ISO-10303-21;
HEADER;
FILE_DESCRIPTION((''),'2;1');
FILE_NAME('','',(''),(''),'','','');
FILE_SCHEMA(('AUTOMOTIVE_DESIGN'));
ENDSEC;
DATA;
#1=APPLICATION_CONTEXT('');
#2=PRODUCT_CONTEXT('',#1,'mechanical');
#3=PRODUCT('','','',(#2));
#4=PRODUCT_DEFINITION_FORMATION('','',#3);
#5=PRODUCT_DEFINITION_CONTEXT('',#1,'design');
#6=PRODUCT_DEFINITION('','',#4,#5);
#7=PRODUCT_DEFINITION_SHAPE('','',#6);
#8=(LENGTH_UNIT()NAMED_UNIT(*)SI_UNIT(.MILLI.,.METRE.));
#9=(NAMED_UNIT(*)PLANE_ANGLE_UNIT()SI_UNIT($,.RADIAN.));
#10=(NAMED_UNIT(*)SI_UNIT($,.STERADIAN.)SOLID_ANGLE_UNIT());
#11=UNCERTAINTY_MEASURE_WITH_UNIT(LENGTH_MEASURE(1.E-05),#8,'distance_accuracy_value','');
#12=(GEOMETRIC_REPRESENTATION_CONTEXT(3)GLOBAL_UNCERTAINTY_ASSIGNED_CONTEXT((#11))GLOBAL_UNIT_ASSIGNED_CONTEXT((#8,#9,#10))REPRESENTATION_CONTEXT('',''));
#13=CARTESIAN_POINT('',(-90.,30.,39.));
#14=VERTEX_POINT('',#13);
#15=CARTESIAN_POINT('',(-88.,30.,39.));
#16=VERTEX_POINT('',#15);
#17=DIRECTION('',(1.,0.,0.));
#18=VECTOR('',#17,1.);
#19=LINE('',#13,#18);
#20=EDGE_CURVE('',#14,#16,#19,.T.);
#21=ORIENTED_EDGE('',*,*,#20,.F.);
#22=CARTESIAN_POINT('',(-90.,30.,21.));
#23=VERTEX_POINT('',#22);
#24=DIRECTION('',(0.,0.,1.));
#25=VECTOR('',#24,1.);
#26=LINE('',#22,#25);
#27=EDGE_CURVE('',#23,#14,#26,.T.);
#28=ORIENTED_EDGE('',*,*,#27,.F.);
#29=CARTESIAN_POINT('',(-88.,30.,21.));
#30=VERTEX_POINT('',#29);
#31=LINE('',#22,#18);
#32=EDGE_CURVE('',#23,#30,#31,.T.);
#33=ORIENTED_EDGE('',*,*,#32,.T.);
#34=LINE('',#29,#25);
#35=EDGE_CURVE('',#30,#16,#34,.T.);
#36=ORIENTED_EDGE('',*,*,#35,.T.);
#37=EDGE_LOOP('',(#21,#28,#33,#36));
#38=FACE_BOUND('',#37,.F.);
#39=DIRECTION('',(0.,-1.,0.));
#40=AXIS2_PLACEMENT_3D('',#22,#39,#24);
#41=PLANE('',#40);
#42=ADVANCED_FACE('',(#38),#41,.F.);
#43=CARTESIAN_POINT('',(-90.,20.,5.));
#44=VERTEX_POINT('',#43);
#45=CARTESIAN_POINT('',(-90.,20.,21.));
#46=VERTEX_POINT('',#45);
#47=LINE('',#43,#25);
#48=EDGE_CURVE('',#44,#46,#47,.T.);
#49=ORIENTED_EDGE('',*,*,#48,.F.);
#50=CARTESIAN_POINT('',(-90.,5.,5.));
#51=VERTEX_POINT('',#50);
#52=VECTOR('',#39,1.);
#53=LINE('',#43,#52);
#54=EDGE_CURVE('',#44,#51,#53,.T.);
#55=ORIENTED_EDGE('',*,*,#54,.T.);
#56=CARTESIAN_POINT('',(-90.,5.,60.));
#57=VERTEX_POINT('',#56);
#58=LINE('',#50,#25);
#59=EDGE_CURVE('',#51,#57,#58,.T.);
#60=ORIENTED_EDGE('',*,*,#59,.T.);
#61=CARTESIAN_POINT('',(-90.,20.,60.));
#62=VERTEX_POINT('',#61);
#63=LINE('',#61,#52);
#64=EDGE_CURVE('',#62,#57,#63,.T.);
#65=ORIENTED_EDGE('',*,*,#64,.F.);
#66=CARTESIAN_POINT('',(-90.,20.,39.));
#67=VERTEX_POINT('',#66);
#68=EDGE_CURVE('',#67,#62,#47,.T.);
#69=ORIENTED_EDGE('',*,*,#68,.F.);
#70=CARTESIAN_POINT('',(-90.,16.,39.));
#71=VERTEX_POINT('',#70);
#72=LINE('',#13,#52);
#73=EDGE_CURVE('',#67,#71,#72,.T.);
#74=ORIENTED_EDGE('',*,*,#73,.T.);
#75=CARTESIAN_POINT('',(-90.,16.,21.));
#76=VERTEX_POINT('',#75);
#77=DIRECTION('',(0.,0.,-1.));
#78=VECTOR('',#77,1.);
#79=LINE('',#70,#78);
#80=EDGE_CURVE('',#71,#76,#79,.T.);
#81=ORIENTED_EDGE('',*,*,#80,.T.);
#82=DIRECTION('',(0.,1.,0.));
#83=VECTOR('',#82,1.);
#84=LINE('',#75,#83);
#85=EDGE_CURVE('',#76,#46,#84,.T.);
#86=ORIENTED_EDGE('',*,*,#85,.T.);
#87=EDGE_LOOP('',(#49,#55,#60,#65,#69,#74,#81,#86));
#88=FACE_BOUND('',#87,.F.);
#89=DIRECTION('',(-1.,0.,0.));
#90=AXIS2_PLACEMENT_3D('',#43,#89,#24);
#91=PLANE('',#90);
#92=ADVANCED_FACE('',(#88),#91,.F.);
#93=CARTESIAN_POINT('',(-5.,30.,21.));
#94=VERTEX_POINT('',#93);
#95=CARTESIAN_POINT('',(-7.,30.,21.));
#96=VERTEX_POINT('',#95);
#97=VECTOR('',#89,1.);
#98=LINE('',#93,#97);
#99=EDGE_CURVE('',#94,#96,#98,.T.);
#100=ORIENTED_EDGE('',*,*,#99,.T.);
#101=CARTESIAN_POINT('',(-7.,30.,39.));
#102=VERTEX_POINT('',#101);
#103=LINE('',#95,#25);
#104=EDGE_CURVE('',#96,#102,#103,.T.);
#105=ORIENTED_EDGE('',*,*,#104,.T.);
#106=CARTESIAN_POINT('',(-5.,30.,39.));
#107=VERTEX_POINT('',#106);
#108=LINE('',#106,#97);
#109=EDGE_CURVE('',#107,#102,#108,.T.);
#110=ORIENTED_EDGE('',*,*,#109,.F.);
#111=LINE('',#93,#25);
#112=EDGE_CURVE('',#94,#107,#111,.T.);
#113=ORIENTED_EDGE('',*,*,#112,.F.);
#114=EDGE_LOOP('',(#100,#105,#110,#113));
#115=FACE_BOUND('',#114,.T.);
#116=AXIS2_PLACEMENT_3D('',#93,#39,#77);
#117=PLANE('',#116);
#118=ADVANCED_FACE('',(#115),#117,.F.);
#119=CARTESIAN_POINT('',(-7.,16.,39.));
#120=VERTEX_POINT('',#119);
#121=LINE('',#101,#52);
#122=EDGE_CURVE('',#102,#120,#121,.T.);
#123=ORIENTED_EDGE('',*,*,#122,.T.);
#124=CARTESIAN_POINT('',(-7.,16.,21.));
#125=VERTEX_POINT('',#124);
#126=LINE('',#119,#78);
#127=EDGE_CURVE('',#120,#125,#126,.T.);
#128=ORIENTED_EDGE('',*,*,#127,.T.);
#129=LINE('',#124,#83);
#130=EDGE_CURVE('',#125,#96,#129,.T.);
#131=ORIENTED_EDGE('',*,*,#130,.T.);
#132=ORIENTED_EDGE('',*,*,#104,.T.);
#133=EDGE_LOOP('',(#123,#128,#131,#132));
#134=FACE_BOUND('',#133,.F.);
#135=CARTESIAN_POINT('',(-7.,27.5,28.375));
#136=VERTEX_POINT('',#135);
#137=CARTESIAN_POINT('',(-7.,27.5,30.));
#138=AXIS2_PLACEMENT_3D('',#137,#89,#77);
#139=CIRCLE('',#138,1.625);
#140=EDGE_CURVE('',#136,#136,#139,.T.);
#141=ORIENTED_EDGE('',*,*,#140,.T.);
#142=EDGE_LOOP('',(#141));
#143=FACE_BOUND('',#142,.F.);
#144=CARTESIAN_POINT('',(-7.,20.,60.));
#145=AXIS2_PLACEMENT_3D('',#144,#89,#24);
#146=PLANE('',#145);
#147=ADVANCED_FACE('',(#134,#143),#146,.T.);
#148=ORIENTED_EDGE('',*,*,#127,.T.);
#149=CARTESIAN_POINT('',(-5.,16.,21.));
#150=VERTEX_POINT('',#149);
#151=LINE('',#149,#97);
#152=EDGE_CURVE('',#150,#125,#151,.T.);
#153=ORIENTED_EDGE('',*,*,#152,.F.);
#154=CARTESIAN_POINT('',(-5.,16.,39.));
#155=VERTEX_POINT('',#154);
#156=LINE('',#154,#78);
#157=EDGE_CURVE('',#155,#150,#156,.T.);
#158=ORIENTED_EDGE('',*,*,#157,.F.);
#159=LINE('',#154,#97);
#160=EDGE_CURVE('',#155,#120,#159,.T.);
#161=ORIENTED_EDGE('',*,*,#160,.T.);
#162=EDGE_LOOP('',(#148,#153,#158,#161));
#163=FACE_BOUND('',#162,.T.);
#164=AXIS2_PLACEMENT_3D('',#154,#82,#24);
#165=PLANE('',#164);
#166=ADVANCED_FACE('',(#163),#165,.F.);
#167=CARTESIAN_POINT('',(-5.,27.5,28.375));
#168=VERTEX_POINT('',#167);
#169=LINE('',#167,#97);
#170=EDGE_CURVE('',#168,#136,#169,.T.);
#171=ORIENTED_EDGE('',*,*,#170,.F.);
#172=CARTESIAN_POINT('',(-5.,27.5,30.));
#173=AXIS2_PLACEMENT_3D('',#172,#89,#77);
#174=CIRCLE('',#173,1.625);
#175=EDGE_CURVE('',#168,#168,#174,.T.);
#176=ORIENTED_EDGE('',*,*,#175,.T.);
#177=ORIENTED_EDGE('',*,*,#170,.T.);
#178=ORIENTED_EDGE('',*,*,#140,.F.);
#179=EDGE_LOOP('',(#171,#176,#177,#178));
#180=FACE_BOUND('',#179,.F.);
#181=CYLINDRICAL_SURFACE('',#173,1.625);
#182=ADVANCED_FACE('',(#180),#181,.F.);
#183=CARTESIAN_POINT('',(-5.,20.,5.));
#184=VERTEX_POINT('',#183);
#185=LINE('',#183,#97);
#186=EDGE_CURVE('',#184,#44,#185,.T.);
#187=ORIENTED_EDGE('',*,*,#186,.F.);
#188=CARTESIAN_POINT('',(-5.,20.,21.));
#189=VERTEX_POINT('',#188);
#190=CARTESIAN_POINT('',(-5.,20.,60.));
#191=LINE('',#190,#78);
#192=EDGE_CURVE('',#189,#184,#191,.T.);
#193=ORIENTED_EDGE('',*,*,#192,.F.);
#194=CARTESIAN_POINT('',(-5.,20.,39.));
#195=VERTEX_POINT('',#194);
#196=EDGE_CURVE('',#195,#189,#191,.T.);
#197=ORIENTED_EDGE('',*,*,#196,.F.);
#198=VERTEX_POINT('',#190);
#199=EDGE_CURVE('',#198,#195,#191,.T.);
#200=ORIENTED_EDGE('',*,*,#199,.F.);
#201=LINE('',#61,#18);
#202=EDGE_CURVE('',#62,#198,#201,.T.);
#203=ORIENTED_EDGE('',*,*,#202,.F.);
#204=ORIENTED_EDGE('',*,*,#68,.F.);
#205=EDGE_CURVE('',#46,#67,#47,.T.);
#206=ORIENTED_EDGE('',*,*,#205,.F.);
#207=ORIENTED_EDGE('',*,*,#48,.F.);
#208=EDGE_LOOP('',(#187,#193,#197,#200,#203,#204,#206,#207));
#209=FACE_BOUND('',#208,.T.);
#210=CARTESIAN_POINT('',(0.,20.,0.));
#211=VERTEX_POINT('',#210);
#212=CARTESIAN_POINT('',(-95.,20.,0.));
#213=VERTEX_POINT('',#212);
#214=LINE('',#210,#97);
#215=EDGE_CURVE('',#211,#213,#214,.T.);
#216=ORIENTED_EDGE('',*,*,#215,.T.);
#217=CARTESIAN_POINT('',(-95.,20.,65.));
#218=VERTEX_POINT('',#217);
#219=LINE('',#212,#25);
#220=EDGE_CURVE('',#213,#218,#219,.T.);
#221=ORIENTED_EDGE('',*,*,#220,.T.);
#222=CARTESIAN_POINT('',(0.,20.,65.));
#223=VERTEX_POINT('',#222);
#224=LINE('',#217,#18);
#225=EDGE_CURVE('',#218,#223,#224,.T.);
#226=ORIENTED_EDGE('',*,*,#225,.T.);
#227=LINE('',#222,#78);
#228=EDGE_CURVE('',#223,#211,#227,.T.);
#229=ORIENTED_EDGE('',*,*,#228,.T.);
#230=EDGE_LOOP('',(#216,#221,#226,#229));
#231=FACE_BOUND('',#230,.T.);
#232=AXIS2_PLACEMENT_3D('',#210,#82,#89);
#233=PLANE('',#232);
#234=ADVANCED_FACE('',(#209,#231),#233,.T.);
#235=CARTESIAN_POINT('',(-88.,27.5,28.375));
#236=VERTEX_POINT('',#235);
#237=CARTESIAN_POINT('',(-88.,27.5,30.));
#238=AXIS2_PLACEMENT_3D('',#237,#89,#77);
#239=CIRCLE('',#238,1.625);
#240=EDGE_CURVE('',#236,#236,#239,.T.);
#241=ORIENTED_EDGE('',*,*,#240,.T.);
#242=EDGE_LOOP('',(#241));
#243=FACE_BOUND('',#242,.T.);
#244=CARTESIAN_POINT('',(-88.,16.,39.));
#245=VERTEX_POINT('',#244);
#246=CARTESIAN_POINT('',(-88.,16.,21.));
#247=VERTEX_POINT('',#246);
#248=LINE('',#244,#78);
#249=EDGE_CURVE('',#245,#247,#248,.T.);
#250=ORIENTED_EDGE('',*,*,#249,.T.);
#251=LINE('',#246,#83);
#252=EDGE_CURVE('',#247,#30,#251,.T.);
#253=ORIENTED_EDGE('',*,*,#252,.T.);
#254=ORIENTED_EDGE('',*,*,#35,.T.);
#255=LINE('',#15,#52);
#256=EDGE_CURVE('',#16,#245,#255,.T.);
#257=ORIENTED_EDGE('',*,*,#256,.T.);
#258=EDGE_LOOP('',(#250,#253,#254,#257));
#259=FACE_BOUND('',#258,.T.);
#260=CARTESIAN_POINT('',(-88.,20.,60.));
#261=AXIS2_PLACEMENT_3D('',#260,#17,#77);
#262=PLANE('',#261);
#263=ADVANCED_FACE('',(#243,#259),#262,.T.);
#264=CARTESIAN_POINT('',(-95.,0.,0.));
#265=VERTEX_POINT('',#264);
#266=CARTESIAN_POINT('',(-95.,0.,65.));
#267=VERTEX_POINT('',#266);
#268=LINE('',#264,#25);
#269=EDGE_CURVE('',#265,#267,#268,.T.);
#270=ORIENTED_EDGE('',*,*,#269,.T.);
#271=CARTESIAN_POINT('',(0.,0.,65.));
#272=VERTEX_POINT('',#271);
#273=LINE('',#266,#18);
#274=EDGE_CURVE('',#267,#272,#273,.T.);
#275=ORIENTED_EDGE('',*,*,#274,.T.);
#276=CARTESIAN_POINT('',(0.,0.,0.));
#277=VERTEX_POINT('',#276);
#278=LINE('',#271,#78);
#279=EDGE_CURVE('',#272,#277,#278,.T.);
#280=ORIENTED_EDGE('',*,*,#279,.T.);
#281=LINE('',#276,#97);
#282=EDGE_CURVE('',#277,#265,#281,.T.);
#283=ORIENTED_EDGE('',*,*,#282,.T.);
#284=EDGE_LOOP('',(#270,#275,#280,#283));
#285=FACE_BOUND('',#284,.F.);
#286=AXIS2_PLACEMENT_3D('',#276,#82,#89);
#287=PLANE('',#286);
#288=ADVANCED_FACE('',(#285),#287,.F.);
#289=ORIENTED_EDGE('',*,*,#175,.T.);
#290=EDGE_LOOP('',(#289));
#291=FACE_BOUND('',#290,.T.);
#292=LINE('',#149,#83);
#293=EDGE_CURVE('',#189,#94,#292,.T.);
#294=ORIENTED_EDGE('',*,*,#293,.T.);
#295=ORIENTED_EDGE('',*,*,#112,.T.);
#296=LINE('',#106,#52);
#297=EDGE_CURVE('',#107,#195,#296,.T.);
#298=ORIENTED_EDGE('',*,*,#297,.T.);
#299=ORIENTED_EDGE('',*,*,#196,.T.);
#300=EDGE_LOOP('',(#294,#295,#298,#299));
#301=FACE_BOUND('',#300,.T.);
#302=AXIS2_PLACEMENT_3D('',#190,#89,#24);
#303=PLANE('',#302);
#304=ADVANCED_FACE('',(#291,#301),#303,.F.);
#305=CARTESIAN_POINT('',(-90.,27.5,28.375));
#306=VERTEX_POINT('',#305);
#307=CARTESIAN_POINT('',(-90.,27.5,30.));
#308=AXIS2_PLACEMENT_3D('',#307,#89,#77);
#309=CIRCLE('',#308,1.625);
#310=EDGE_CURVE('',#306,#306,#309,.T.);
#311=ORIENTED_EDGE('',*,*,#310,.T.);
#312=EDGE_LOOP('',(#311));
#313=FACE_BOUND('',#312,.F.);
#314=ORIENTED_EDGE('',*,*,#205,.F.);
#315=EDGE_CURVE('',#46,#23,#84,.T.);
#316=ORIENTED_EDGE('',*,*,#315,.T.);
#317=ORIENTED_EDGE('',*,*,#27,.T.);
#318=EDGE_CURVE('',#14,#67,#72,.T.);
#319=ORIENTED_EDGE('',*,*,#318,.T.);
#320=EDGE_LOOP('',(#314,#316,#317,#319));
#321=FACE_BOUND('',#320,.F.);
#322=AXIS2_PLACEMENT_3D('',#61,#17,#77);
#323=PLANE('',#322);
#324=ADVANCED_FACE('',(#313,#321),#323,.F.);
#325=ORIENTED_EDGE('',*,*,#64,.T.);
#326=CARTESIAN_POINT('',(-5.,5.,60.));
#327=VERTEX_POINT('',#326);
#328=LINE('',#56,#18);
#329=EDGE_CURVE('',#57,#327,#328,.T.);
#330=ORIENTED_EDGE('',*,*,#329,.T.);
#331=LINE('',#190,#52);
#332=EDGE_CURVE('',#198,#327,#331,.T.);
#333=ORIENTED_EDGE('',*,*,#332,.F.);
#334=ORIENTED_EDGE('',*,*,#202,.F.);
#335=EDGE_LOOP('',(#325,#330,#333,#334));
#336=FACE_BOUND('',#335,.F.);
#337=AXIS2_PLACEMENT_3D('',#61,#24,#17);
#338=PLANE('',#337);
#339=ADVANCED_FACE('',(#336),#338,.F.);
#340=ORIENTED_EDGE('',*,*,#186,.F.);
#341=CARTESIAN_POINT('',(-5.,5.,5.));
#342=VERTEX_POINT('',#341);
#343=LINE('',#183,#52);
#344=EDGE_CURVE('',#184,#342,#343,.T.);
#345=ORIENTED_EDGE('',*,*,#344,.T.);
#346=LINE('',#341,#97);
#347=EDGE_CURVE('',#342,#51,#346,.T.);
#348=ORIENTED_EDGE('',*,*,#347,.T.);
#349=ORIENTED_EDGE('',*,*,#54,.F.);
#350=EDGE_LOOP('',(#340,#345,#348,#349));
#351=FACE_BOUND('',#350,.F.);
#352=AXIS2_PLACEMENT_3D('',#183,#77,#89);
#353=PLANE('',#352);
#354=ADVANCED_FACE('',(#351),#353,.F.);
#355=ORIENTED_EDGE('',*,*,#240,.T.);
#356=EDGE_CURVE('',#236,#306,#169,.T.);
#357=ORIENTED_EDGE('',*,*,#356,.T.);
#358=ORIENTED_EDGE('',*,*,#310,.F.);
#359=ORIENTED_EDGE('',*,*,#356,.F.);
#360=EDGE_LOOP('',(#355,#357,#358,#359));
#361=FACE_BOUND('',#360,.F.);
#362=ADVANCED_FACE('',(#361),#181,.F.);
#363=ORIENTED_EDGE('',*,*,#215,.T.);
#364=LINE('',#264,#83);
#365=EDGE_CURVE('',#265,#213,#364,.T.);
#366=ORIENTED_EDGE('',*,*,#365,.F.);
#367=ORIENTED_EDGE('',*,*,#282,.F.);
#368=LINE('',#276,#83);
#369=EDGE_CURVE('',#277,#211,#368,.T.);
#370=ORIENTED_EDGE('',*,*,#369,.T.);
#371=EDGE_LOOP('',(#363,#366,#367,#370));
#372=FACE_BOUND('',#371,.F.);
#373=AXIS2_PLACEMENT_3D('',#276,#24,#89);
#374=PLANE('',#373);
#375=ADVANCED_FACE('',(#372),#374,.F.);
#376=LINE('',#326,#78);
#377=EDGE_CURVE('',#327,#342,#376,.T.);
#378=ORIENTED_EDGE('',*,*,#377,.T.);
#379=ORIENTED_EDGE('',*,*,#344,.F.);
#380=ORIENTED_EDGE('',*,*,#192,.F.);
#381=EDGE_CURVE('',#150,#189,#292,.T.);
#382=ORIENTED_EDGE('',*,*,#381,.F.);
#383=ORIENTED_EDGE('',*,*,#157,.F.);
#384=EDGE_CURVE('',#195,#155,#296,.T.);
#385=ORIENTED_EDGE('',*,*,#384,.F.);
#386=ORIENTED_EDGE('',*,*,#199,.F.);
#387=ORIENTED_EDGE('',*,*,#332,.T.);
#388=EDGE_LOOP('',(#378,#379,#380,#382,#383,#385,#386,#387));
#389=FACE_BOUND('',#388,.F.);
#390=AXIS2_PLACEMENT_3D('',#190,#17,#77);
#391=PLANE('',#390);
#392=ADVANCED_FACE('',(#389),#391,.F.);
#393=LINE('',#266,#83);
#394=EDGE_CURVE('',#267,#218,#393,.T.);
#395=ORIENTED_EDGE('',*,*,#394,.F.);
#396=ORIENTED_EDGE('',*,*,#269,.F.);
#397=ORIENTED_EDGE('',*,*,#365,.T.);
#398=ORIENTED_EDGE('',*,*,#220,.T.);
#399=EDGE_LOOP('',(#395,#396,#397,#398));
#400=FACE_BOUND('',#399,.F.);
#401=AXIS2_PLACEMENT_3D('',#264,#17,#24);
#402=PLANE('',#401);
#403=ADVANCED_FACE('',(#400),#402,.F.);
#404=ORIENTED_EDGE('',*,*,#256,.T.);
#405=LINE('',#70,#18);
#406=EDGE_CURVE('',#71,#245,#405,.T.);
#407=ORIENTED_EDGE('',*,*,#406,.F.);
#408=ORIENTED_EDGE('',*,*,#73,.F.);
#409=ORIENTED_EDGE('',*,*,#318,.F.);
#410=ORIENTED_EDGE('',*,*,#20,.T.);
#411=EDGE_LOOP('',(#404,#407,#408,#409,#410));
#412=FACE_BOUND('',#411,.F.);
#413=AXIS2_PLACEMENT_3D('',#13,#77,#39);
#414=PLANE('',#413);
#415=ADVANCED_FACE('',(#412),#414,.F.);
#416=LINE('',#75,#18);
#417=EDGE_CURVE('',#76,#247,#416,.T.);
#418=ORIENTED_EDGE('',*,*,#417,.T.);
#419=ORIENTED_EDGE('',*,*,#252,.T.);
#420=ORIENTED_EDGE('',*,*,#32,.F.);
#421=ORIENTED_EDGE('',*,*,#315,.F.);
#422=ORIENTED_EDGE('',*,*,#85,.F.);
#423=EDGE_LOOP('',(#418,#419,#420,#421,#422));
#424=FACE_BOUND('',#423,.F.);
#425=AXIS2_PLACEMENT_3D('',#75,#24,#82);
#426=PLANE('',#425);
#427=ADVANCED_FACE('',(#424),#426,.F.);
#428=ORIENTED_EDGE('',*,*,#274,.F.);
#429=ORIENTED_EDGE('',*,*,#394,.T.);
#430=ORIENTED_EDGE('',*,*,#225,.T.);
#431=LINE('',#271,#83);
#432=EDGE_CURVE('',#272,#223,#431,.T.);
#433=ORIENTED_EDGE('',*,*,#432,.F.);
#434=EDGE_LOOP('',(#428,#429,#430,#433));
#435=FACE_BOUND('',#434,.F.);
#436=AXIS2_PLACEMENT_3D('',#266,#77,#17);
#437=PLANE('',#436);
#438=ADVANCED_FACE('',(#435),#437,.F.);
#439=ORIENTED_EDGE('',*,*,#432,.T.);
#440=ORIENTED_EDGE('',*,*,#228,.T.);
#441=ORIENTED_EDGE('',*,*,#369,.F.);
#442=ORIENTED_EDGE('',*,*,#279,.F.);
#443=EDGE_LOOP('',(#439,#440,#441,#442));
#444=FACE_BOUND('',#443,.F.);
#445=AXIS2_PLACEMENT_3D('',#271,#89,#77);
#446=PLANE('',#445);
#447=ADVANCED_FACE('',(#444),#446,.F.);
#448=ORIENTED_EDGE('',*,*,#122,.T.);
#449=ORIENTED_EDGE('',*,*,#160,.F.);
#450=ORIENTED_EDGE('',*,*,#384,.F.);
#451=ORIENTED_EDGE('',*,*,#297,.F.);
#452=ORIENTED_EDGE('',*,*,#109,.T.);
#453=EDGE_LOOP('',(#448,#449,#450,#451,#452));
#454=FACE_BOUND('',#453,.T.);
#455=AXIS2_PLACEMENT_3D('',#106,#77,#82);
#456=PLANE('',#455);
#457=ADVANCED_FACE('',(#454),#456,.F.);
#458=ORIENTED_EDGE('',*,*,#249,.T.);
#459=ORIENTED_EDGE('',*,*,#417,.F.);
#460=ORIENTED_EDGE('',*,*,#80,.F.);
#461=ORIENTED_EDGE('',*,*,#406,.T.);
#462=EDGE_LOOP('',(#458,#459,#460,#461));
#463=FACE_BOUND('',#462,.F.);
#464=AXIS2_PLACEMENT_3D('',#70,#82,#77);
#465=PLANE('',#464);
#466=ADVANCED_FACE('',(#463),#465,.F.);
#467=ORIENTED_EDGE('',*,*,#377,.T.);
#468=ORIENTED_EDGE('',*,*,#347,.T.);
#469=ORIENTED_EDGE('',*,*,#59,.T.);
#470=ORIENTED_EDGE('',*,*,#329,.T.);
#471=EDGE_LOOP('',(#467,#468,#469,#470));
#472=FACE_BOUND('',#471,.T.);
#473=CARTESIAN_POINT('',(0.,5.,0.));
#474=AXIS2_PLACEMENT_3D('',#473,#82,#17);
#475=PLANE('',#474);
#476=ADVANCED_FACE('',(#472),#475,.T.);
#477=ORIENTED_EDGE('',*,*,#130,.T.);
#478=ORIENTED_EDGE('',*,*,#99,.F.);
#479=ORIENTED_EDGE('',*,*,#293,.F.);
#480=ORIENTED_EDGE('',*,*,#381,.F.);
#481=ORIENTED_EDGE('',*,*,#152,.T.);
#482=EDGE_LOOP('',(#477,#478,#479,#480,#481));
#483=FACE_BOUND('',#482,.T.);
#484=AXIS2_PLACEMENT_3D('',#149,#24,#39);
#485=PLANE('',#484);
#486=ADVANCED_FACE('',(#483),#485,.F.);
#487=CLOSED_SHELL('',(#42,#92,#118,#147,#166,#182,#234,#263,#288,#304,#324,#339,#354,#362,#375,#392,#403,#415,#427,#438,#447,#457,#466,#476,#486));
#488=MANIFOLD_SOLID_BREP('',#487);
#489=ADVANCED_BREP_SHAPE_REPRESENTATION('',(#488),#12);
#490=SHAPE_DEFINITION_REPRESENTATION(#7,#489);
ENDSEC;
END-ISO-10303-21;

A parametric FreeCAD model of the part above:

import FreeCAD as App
import Part
import Sketcher


def add_polygon(sketch, points):
    """Adds a closed chain of lines whose ends are joined by coincident constraints."""
    first, n = sketch.GeometryCount, len(points)
    for a, b in zip(points, points[1:] + points[:1]):
        sketch.addGeometry(Part.LineSegment(App.Vector(*a, 0), App.Vector(*b, 0)), False)
    for i in range(n):
        sketch.addConstraint(Sketcher.Constraint("Coincident", first + i, 2, first + (i + 1) % n, 1))

doc = App.newDocument("Part")
body = doc.addObject("PartDesign::Body", "Body")

# Sketch on XZ plane
sketch1 = body.newObject("Sketcher::SketchObject", "Sketch")
sketch1.AttachmentSupport = (doc.getObject("XZ_Plane"), [""])
sketch1.MapMode = "FlatFace"
add_polygon(sketch1, [(0, 65), (0, 0), (-95, 0), (-95, 65)])  # lines 0-3
sketch1.addConstraint(Sketcher.Constraint("Vertical", 0))
sketch1.addConstraint(Sketcher.Constraint("Horizontal", 1))
sketch1.addConstraint(Sketcher.Constraint("Vertical", 2))
sketch1.addConstraint(Sketcher.Constraint("Horizontal", 3))
sketch1.addConstraint(Sketcher.Constraint("Coincident", 0, 2, -1, 1))
sketch1.addConstraint(Sketcher.Constraint("DistanceX", 1, 2, 1, 1, 95.0))
sketch1.addConstraint(Sketcher.Constraint("DistanceY", 0, 2, 0, 1, 65.0))
pad1 = body.newObject("PartDesign::Pad", "Pad")
pad1.Profile = sketch1
pad1.Length = 20
pad1.Reversed = True

# Sketch on XZ plane
sketch2 = body.newObject("Sketcher::SketchObject", "Sketch001")
sketch2.AttachmentSupport = (doc.getObject("XZ_Plane"), [""])
sketch2.MapMode = "FlatFace"
sketch2.AttachmentOffset = App.Placement(App.Vector(0, 0, -20), App.Rotation())
add_polygon(sketch2, [(-5, 60), (-5, 5), (-90, 5), (-90, 60)])  # lines 0-3
sketch2.addConstraint(Sketcher.Constraint("Vertical", 0))
sketch2.addConstraint(Sketcher.Constraint("Horizontal", 1))
sketch2.addConstraint(Sketcher.Constraint("Vertical", 2))
sketch2.addConstraint(Sketcher.Constraint("Horizontal", 3))
sketch2.addConstraint(Sketcher.Constraint("DistanceX", 1, 2, 1, 1, 85.0))
sketch2.addConstraint(Sketcher.Constraint("DistanceY", 0, 2, 0, 1, 55.0))
sketch2.addConstraint(Sketcher.Constraint("DistanceX", 0, 2, -1, 1, 5.0))
sketch2.addConstraint(Sketcher.Constraint("DistanceY", -1, 1, 0, 2, 5.0))
pocket1 = body.newObject("PartDesign::Pocket", "Pocket")
pocket1.Profile = sketch2
pocket1.Length = 15
pocket1.Reversed = True

# Sketch on YZ plane
sketch3 = body.newObject("Sketcher::SketchObject", "Sketch002")
sketch3.AttachmentSupport = (doc.getObject("YZ_Plane"), [""])
sketch3.MapMode = "FlatFace"
sketch3.AttachmentOffset = App.Placement(App.Vector(0, 0, -90), App.Rotation())
add_polygon(sketch3, [(30, 39), (16, 39), (16, 21), (30, 21)])  # lines 0-3
sketch3.addConstraint(Sketcher.Constraint("Horizontal", 0))
sketch3.addConstraint(Sketcher.Constraint("Vertical", 1))
sketch3.addConstraint(Sketcher.Constraint("Horizontal", 2))
sketch3.addConstraint(Sketcher.Constraint("Vertical", 3))
sketch3.addConstraint(Sketcher.Constraint("DistanceX", 0, 2, 0, 1, 14.0))
sketch3.addConstraint(Sketcher.Constraint("DistanceY", 1, 2, 1, 1, 18.0))
sketch3.addConstraint(Sketcher.Constraint("DistanceY", -1, 1, 1, 2, 21.0))
sketch3.addConstraint(Sketcher.Constraint("DistanceX", -1, 1, 0, 2, 16.0))
pad2 = body.newObject("PartDesign::Pad", "Pad001")
pad2.Profile = sketch3
pad2.Length = 2
doc.recompute()

datumplane = body.newObject("PartDesign::Plane", "DatumPlane")
datumplane.AttachmentSupport = (doc.getObject("YZ_Plane"), [""])
datumplane.MapMode = "FlatFace"
datumplane.AttachmentOffset = App.Placement(App.Vector(0, 0, -47.5), App.Rotation())
mirrored = body.newObject("PartDesign::Mirrored", "Mirrored")
mirrored.Originals = [pad2]
mirrored.MirrorPlane = (datumplane, [""])
body.Tip = mirrored

# Sketch on YZ plane
sketch4 = body.newObject("Sketcher::SketchObject", "Sketch003")
sketch4.AttachmentSupport = (doc.getObject("YZ_Plane"), [""])
sketch4.MapMode = "FlatFace"
sketch4.AttachmentOffset = App.Placement(App.Vector(0, 0, -5), App.Rotation())
sketch4.addGeometry(Part.Circle(App.Vector(27.5, 30, 0), App.Vector(0, 0, 1), 1.6), False)
sketch4.addConstraint(Sketcher.Constraint("Diameter", 0, 3.25))
sketch4.addConstraint(Sketcher.Constraint("DistanceY", -1, 1, 0, 3, 30.0))
sketch4.addConstraint(Sketcher.Constraint("DistanceX", -1, 1, 0, 3, 27.5))
doc.recompute()
hole = body.newObject("PartDesign::Hole", "Hole")
hole.Profile = sketch4
hole.ThreadType = "None"
hole.Diameter = 3.25
hole.DepthType = "ThroughAll"

doc.recompute()
